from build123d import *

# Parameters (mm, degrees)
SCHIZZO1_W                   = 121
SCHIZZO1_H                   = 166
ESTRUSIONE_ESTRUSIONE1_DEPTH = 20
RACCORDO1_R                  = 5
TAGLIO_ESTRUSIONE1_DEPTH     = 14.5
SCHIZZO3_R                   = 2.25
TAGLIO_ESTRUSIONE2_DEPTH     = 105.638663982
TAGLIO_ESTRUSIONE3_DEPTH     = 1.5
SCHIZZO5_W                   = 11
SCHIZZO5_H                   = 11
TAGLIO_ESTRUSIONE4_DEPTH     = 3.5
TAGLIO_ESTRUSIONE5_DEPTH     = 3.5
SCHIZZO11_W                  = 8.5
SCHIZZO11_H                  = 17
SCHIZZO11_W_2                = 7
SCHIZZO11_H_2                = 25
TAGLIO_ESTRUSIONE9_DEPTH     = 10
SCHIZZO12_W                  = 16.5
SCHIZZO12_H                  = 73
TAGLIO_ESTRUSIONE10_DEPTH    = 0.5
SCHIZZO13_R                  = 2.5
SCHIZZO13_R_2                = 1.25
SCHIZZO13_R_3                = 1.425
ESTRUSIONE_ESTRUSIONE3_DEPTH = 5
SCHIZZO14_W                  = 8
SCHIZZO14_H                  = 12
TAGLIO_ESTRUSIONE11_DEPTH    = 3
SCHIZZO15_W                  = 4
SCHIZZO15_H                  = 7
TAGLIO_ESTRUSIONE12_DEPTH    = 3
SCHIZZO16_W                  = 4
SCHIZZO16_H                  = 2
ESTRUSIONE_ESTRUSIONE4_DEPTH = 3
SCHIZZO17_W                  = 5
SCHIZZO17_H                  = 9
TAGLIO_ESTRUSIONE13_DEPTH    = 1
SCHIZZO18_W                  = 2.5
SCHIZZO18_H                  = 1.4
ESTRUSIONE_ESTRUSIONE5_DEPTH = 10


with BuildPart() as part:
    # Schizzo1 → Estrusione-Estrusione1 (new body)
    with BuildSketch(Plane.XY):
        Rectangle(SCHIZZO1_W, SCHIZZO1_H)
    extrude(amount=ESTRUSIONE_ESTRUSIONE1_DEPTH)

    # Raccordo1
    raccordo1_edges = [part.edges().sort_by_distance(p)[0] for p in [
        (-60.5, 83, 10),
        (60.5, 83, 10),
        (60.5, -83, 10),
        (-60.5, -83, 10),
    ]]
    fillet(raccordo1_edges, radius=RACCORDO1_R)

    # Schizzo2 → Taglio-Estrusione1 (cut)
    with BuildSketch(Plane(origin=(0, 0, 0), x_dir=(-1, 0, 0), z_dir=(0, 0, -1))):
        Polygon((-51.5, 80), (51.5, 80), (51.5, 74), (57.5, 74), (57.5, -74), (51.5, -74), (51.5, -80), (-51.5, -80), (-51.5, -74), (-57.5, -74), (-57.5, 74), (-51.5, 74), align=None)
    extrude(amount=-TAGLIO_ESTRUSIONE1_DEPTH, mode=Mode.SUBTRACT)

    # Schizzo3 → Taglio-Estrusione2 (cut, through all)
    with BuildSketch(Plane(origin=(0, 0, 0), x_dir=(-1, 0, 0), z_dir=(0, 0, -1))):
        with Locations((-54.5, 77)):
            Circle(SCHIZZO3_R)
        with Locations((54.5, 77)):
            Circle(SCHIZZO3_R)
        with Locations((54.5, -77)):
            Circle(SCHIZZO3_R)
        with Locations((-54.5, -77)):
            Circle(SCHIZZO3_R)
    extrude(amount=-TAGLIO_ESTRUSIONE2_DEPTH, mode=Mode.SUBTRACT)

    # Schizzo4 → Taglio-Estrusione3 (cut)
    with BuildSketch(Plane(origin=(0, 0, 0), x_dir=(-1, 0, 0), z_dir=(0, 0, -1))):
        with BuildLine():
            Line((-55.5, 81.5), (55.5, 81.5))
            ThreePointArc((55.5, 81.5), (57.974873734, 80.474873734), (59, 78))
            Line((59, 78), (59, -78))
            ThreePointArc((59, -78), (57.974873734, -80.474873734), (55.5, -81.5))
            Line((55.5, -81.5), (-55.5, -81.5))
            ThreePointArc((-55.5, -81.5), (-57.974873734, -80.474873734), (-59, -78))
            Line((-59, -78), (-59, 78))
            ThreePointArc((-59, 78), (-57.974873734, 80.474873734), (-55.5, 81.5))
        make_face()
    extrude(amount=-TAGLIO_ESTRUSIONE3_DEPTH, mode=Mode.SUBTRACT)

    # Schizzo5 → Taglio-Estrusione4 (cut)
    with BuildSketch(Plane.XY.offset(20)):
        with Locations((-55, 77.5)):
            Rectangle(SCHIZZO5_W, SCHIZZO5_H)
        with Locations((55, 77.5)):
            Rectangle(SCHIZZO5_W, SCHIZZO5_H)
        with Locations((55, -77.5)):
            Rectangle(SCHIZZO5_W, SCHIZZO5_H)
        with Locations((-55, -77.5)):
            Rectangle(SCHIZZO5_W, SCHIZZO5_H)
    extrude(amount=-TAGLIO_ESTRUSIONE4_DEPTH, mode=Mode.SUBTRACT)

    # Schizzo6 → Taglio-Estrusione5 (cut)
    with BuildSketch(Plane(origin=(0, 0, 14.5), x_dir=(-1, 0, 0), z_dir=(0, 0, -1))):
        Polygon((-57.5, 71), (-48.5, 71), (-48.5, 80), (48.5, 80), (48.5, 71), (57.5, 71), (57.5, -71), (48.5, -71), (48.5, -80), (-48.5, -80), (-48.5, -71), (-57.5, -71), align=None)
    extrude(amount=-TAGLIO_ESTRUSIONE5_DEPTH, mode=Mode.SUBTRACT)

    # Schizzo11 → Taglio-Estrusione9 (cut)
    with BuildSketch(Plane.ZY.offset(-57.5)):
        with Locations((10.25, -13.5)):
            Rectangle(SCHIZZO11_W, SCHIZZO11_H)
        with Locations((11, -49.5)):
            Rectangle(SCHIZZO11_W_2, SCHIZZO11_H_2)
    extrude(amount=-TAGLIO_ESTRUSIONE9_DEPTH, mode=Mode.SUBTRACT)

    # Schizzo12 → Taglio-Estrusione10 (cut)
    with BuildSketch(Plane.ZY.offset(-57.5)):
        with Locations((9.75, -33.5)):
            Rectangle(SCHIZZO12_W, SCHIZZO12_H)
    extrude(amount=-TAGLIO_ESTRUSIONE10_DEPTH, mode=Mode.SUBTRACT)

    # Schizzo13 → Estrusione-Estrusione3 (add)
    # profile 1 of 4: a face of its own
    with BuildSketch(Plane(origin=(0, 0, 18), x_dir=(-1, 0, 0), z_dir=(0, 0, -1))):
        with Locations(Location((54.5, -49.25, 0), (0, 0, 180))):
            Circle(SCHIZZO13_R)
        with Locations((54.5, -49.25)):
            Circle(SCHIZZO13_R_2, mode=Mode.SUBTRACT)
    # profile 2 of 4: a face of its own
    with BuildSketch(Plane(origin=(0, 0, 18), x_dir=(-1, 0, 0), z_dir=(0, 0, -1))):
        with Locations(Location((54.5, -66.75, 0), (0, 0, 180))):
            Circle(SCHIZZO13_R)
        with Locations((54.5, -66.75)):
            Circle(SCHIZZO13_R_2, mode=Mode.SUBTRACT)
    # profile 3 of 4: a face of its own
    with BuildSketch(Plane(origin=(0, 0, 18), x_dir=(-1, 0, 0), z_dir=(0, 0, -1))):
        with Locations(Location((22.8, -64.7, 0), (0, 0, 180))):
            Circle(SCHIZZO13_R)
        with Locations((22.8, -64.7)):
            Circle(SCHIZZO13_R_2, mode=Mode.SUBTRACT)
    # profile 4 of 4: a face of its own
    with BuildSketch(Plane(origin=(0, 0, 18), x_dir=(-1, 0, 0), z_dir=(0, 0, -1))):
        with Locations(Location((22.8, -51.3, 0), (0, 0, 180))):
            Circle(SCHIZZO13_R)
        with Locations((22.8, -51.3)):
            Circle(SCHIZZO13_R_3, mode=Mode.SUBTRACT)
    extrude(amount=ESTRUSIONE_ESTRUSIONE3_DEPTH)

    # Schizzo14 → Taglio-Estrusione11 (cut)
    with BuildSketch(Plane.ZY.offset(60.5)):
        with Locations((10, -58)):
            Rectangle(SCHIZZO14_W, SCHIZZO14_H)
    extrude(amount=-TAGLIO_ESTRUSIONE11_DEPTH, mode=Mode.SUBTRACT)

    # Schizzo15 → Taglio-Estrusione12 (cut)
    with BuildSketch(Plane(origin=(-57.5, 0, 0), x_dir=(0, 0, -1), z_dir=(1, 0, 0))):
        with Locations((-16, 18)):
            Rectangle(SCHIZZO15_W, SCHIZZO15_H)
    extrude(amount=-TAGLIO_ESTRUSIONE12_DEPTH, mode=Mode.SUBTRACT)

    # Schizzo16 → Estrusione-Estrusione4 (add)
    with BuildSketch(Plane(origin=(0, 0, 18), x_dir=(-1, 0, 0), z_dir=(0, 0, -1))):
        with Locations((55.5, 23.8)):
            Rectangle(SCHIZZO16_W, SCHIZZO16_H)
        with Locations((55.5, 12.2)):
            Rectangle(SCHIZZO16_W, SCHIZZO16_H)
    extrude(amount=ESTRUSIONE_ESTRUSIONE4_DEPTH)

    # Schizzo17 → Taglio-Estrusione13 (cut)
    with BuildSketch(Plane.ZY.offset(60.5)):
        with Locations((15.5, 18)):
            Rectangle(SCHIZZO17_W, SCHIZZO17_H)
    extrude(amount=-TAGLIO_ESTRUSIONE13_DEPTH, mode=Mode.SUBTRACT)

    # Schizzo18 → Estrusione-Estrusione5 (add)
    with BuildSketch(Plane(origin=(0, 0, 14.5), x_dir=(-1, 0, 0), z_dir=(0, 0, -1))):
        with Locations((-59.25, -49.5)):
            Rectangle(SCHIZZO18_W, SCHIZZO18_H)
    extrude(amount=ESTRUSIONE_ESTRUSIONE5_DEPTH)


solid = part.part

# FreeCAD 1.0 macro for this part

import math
import FreeCAD as App
import Part
import Sketcher
from FreeCAD import Vector


def edges_at(feature, points):
    """Names of the edges that pass closest to the given points."""
    edges = feature.Shape.Edges
    near = lambda p: min(range(len(edges)), key=lambda i: edges[i].distToShape(Part.Vertex(*p))[0])
    return sorted({f"Edge{near(p) + 1}" for p in points})

doc = App.newDocument("Part")
params = doc.addObject("Spreadsheet::Sheet", "Params")
for row, (alias, value) in enumerate([
    ("sketch1_width", "121 mm"),
    ("sketch1_height", "166 mm"),
    ("pad1_length", "20 mm"),
    ("fillet_radius", "5 mm"),
    ("sketch2_width", "103 mm"),
    ("sketch2_width2", "6 mm"),
    ("sketch2_height", "148 mm"),
    ("pocket1_length", "14.5 mm"),
    ("sketch3_diameter", "4.5 mm"),
    ("sketch4_radius", "3.5 mm"),
    ("sketch4_width", "111 mm"),
    ("sketch4_height", "156 mm"),
    ("pocket3_length", "1.5 mm"),
    ("sketch5_width", "11 mm"),
    ("pocket4_length", "3.5 mm"),
    ("sketch6_width", "9 mm"),
    ("sketch6_width2", "97 mm"),
    ("sketch6_height", "142 mm"),
    ("pocket5_length", "3.5 mm"),
    ("sketch7_width", "17 mm"),
    ("sketch7_width2", "25 mm"),
    ("sketch7_height", "7 mm"),
    ("sketch7_height2", "8.5 mm"),
    ("pocket6_length", "10 mm"),
    ("sketch8_width", "73 mm"),
    ("sketch8_height", "16.5 mm"),
    ("pocket7_length", "0.5 mm"),
    ("sketch9_diameter", "5 mm"),
    ("sketch9_diameter2", "2.5 mm"),
    ("sketch9_diameter3", "2.85 mm"),
    ("pad2_length", "5 mm"),
    ("sketch10_width", "12 mm"),
    ("sketch10_height", "8 mm"),
    ("pocket8_length", "3 mm"),
    ("sketch11_width", "7 mm"),
    ("sketch11_height", "4 mm"),
    ("pocket9_length", "3 mm"),
    ("sketch12_width", "4 mm"),
    ("sketch12_height", "2 mm"),
    ("pad3_length", "3 mm"),
    ("sketch13_width", "9 mm"),
    ("sketch13_height", "5 mm"),
    ("pocket10_length", "1 mm"),
    ("sketch14_width", "2.5 mm"),
    ("sketch14_height", "1.4 mm"),
    ("pad4_length", "10 mm"),
], start=1):
    params.set(f"A{row}", alias)
    params.set(f"B{row}", "=" + value)
    params.setAlias(f"B{row}", alias)

body = doc.addObject("PartDesign::Body", "Body")

# Sketch on XY plane
sketch1 = doc.addObject("Sketcher::SketchObject", "Sketch")
body.addObject(sketch1)
sketch1.AttachmentSupport = (doc.XY_Plane, [""])
sketch1.MapMode = "FlatFace"
sketch1.addGeometry([
    Part.LineSegment(Vector(-60.5, 83, 0), Vector(-60.5, -83, 0)),
    Part.LineSegment(Vector(-60.5, -83, 0), Vector(60.5, -83, 0)),
    Part.LineSegment(Vector(60.5, -83, 0), Vector(60.5, 83, 0)),
    Part.LineSegment(Vector(60.5, 83, 0), Vector(-60.5, 83, 0)),
], False)
sketch1.addConstraint([
    Sketcher.Constraint("Coincident", 0, 2, 1, 1),
    Sketcher.Constraint("Coincident", 1, 2, 2, 1),
    Sketcher.Constraint("Coincident", 2, 2, 3, 1),
    Sketcher.Constraint("Coincident", 3, 2, 0, 1),
    Sketcher.Constraint("Vertical", 0),
    Sketcher.Constraint("Horizontal", 1),
    Sketcher.Constraint("Vertical", 2),
    Sketcher.Constraint("Horizontal", 3),
    Sketcher.Constraint("Symmetric", 0, 2, 2, 2, -1, 1),
    Sketcher.Constraint("DistanceX", 1, 1, 1, 2, 121.0),
    Sketcher.Constraint("DistanceY", 0, 2, 0, 1, 166.0),
])
sketch1.setExpression("Constraints[9]", "Params.sketch1_width")
sketch1.setExpression("Constraints[10]", "Params.sketch1_height")
pad1 = doc.addObject("PartDesign::Pad", "Pad")
body.addObject(pad1)
pad1.Profile = sketch1
pad1.setExpression("Length", "Params.pad1_length")
doc.recompute()

fillet = doc.addObject("PartDesign::Fillet", "Fillet")
body.addObject(fillet)
fillet.Base = (pad1, edges_at(pad1, [
    (-60.5, 83, 10),
    (60.5, 83, 10),
    (60.5, -83, 10),
    (-60.5, -83, 10),
]))
fillet.setExpression("Radius", "Params.fillet_radius")

# Sketch on XY plane
sketch2 = doc.addObject("Sketcher::SketchObject", "Sketch001")
body.addObject(sketch2)
sketch2.AttachmentSupport = (doc.XY_Plane, [""])
sketch2.MapMode = "FlatFace"
sketch2.addGeometry([
    Part.LineSegment(Vector(-51.5, 80, 0), Vector(51.5, 80, 0)),  # 0
    Part.LineSegment(Vector(51.5, 80, 0), Vector(51.5, 74, 0)),  # 1
    Part.LineSegment(Vector(51.5, 74, 0), Vector(57.5, 74, 0)),  # 2
    Part.LineSegment(Vector(57.5, 74, 0), Vector(57.5, -74, 0)),  # 3
    Part.LineSegment(Vector(57.5, -74, 0), Vector(51.5, -74, 0)),  # 4
    Part.LineSegment(Vector(51.5, -74, 0), Vector(51.5, -80, 0)),  # 5
    Part.LineSegment(Vector(51.5, -80, 0), Vector(-51.5, -80, 0)),  # 6
    Part.LineSegment(Vector(-51.5, -80, 0), Vector(-51.5, -74, 0)),  # 7
    Part.LineSegment(Vector(-51.5, -74, 0), Vector(-57.5, -74, 0)),  # 8
    Part.LineSegment(Vector(-57.5, -74, 0), Vector(-57.5, 74, 0)),  # 9
    Part.LineSegment(Vector(-57.5, 74, 0), Vector(-51.5, 74, 0)),  # 10
    Part.LineSegment(Vector(-51.5, 74, 0), Vector(-51.5, 80, 0)),  # 11
], False)
sketch2.addConstraint([
    Sketcher.Constraint("Coincident", 0, 2, 1, 1),
    Sketcher.Constraint("Coincident", 1, 2, 2, 1),
    Sketcher.Constraint("Coincident", 2, 2, 3, 1),
    Sketcher.Constraint("Coincident", 3, 2, 4, 1),
    Sketcher.Constraint("Coincident", 4, 2, 5, 1),
    Sketcher.Constraint("Coincident", 5, 2, 6, 1),
    Sketcher.Constraint("Coincident", 6, 2, 7, 1),
    Sketcher.Constraint("Coincident", 7, 2, 8, 1),
    Sketcher.Constraint("Coincident", 8, 2, 9, 1),
    Sketcher.Constraint("Coincident", 9, 2, 10, 1),
    Sketcher.Constraint("Coincident", 10, 2, 11, 1),
    Sketcher.Constraint("Coincident", 11, 2, 0, 1),
    Sketcher.Constraint("Horizontal", 0),
    Sketcher.Constraint("Vertical", 1),
    Sketcher.Constraint("Horizontal", 2),
    Sketcher.Constraint("Vertical", 3),
    Sketcher.Constraint("Horizontal", 4),
    Sketcher.Constraint("Vertical", 5),
    Sketcher.Constraint("Horizontal", 6),
    Sketcher.Constraint("Vertical", 7),
    Sketcher.Constraint("Horizontal", 8),
    Sketcher.Constraint("Vertical", 9),
    Sketcher.Constraint("Horizontal", 10),
    Sketcher.Constraint("Vertical", 11),
    Sketcher.Constraint("Symmetric", 0, 2, 6, 2, -1, 1),
    Sketcher.Constraint("Symmetric", 2, 2, 8, 2, -1, 1),
    Sketcher.Constraint("Symmetric", 4, 2, 10, 2, -1, 1),
    Sketcher.Constraint("Symmetric", 4, 2, 7, 2, -2),
    Sketcher.Constraint("Equal", 10, 1),
    Sketcher.Constraint("DistanceX", 0, 1, 0, 2, 103.0),
    Sketcher.Constraint("DistanceX", 2, 1, 2, 2, 6.0),
    Sketcher.Constraint("DistanceY", 3, 2, 3, 1, 148.0),
])
sketch2.setExpression("Constraints[29]", "Params.sketch2_width")
sketch2.setExpression("Constraints[30]", "Params.sketch2_width2")
sketch2.setExpression("Constraints[31]", "Params.sketch2_height")
pocket1 = doc.addObject("PartDesign::Pocket", "Pocket")
body.addObject(pocket1)
pocket1.Profile = sketch2
pocket1.setExpression("Length", "Params.pocket1_length")
pocket1.Reversed = True

# Sketch on XY plane
sketch3 = doc.addObject("Sketcher::SketchObject", "Sketch002")
body.addObject(sketch3)
sketch3.AttachmentSupport = (doc.XY_Plane, [""])
sketch3.MapMode = "FlatFace"
sketch3.addGeometry([
    Part.Circle(Vector(54.5, 77, 0), Vector(0, 0, 1), 2.25),
    Part.Circle(Vector(-54.5, 77, 0), Vector(0, 0, 1), 2.25),
    Part.Circle(Vector(-54.5, -77, 0), Vector(0, 0, 1), 2.25),
    Part.Circle(Vector(54.5, -77, 0), Vector(0, 0, 1), 2.25),
], False)
sketch3.addConstraint([
    Sketcher.Constraint("Equal", 0, 1),
    Sketcher.Constraint("Equal", 1, 2),
    Sketcher.Constraint("Equal", 2, 3),
    Sketcher.Constraint("Symmetric", 0, 3, 2, 3, -1, 1),
    Sketcher.Constraint("Symmetric", 1, 3, 3, 3, -1, 1),
    Sketcher.Constraint("Symmetric", 0, 3, 1, 3, -2),
    Sketcher.Constraint("Diameter", 0, 4.5),
    Sketcher.Constraint("DistanceY", -1, 1, 0, 3, 77.0),
    Sketcher.Constraint("DistanceX", 1, 3, 0, 3, 109.0),
])
sketch3.setExpression("Constraints[6]", "Params.sketch3_diameter")
pocket2 = doc.addObject("PartDesign::Pocket", "Pocket001")
body.addObject(pocket2)
pocket2.Profile = sketch3
pocket2.Type = "ThroughAll"
pocket2.Reversed = True

# Sketch on XY plane
sketch4 = doc.addObject("Sketcher::SketchObject", "Sketch003")
body.addObject(sketch4)
sketch4.AttachmentSupport = (doc.XY_Plane, [""])
sketch4.MapMode = "FlatFace"
sketch4.addGeometry([
    Part.LineSegment(Vector(-55.5, 81.5, 0), Vector(55.5, 81.5, 0)),  # 0
    Part.ArcOfCircle(Part.Circle(Vector(55.5, 78, 0), Vector(0, 0, 1), 3.5), math.radians(0), math.radians(90)),  # 1
    Part.LineSegment(Vector(59, 78, 0), Vector(59, -78, 0)),  # 2
    Part.ArcOfCircle(Part.Circle(Vector(55.5, -78, 0), Vector(0, 0, 1), 3.5), math.radians(-90), math.radians(0)),  # 3
    Part.LineSegment(Vector(55.5, -81.5, 0), Vector(-55.5, -81.5, 0)),  # 4
    Part.ArcOfCircle(Part.Circle(Vector(-55.5, -78, 0), Vector(0, 0, 1), 3.5), math.radians(-180), math.radians(-90)),  # 5
    Part.LineSegment(Vector(-59, -78, 0), Vector(-59, 78, 0)),  # 6
    Part.ArcOfCircle(Part.Circle(Vector(-55.5, 78, 0), Vector(0, 0, 1), 3.5), math.radians(90), math.radians(180)),  # 7
], False)
sketch4.addConstraint([
    Sketcher.Constraint("Tangent", 0, 2, 1, 2),
    Sketcher.Constraint("Tangent", 1, 1, 2, 1),
    Sketcher.Constraint("Tangent", 2, 2, 3, 2),
    Sketcher.Constraint("Tangent", 3, 1, 4, 1),
    Sketcher.Constraint("Tangent", 4, 2, 5, 2),
    Sketcher.Constraint("Tangent", 5, 1, 6, 1),
    Sketcher.Constraint("Tangent", 6, 2, 7, 2),
    Sketcher.Constraint("Tangent", 7, 1, 0, 1),
    Sketcher.Constraint("Horizontal", 0),
    Sketcher.Constraint("Vertical", 2),
    Sketcher.Constraint("Horizontal", 4),
    Sketcher.Constraint("Vertical", 6),
    Sketcher.Constraint("Equal", 1, 3),
    Sketcher.Constraint("Equal", 3, 5),
    Sketcher.Constraint("Equal", 5, 7),
    Sketcher.Constraint("Symmetric", 1, 3, 5, 3, -1, 1),
    Sketcher.Constraint("Radius", 1, 3.5),
    Sketcher.Constraint("DistanceX", 0, 1, 0, 2, 111.0),
    Sketcher.Constraint("DistanceY", 2, 2, 2, 1, 156.0),
])
sketch4.setExpression("Constraints[16]", "Params.sketch4_radius")
sketch4.setExpression("Constraints[17]", "Params.sketch4_width")
sketch4.setExpression("Constraints[18]", "Params.sketch4_height")
pocket3 = doc.addObject("PartDesign::Pocket", "Pocket002")
body.addObject(pocket3)
pocket3.Profile = sketch4
pocket3.setExpression("Length", "Params.pocket3_length")
pocket3.Reversed = True

# Sketch on XY plane
sketch5 = doc.addObject("Sketcher::SketchObject", "Sketch004")
body.addObject(sketch5)
sketch5.AttachmentSupport = (doc.XY_Plane, [""])
sketch5.MapMode = "FlatFace"
sketch5.AttachmentOffset = App.Placement(Vector(0, 0, 20), App.Rotation())
sketch5.addGeometry([
    Part.LineSegment(Vector(-60.5, 83, 0), Vector(-60.5, 72, 0)),  # 0
    Part.LineSegment(Vector(-60.5, 72, 0), Vector(-49.5, 72, 0)),  # 1
    Part.LineSegment(Vector(-49.5, 72, 0), Vector(-49.5, 83, 0)),  # 2
    Part.LineSegment(Vector(-49.5, 83, 0), Vector(-60.5, 83, 0)),  # 3
    Part.LineSegment(Vector(49.5, 83, 0), Vector(49.5, 72, 0)),  # 4
    Part.LineSegment(Vector(49.5, 72, 0), Vector(60.5, 72, 0)),  # 5
    Part.LineSegment(Vector(60.5, 72, 0), Vector(60.5, 83, 0)),  # 6
    Part.LineSegment(Vector(60.5, 83, 0), Vector(49.5, 83, 0)),  # 7
    Part.LineSegment(Vector(49.5, -72, 0), Vector(49.5, -83, 0)),  # 8
    Part.LineSegment(Vector(49.5, -83, 0), Vector(60.5, -83, 0)),  # 9
    Part.LineSegment(Vector(60.5, -83, 0), Vector(60.5, -72, 0)),  # 10
    Part.LineSegment(Vector(60.5, -72, 0), Vector(49.5, -72, 0)),  # 11
    Part.LineSegment(Vector(-60.5, -72, 0), Vector(-60.5, -83, 0)),  # 12
    Part.LineSegment(Vector(-60.5, -83, 0), Vector(-49.5, -83, 0)),  # 13
    Part.LineSegment(Vector(-49.5, -83, 0), Vector(-49.5, -72, 0)),  # 14
    Part.LineSegment(Vector(-49.5, -72, 0), Vector(-60.5, -72, 0)),  # 15
], False)
sketch5.addConstraint([
    Sketcher.Constraint("Coincident", 0, 2, 1, 1),
    Sketcher.Constraint("Coincident", 1, 2, 2, 1),
    Sketcher.Constraint("Coincident", 2, 2, 3, 1),
    Sketcher.Constraint("Coincident", 3, 2, 0, 1),
    Sketcher.Constraint("Coincident", 4, 2, 5, 1),
    Sketcher.Constraint("Coincident", 5, 2, 6, 1),
    Sketcher.Constraint("Coincident", 6, 2, 7, 1),
    Sketcher.Constraint("Coincident", 7, 2, 4, 1),
    Sketcher.Constraint("Coincident", 8, 2, 9, 1),
    Sketcher.Constraint("Coincident", 9, 2, 10, 1),
    Sketcher.Constraint("Coincident", 10, 2, 11, 1),
    Sketcher.Constraint("Coincident", 11, 2, 8, 1),
    Sketcher.Constraint("Coincident", 12, 2, 13, 1),
    Sketcher.Constraint("Coincident", 13, 2, 14, 1),
    Sketcher.Constraint("Coincident", 14, 2, 15, 1),
    Sketcher.Constraint("Coincident", 15, 2, 12, 1),
    Sketcher.Constraint("Vertical", 0),
    Sketcher.Constraint("Horizontal", 1),
    Sketcher.Constraint("Vertical", 2),
    Sketcher.Constraint("Horizontal", 3),
    Sketcher.Constraint("Vertical", 4),
    Sketcher.Constraint("Horizontal", 5),
    Sketcher.Constraint("Vertical", 6),
    Sketcher.Constraint("Horizontal", 7),
    Sketcher.Constraint("Vertical", 8),
    Sketcher.Constraint("Horizontal", 9),
    Sketcher.Constraint("Vertical", 10),
    Sketcher.Constraint("Horizontal", 11),
    Sketcher.Constraint("Vertical", 12),
    Sketcher.Constraint("Horizontal", 13),
    Sketcher.Constraint("Vertical", 14),
    Sketcher.Constraint("Horizontal", 15),
    Sketcher.Constraint("Symmetric", 2, 2, 8, 2, -1, 1),
    Sketcher.Constraint("Symmetric", 0, 2, 10, 2, -1, 1),
    Sketcher.Constraint("Symmetric", 6, 2, 12, 2, -1, 1),
    Sketcher.Constraint("Symmetric", 4, 2, 14, 2, -1, 1),
    Sketcher.Constraint("Symmetric", 1, 2, 4, 2, -2),
    Sketcher.Constraint("Symmetric", 3, 2, 6, 2, -2),
    Sketcher.Constraint("Equal", 15, 0),
    Sketcher.Constraint("DistanceX", 1, 1, 1, 2, 11.0),
    Sketcher.Constraint("DistanceY", -1, 1, 0, 2, 72.0),
    Sketcher.Constraint("DistanceX", 1, 2, 4, 2, 99.0),
])
sketch5.setExpression("Constraints[39]", "Params.sketch5_width")
pocket4 = doc.addObject("PartDesign::Pocket", "Pocket003")
body.addObject(pocket4)
pocket4.Profile = sketch5
pocket4.setExpression("Length", "Params.pocket4_length")

# Sketch on XY plane
sketch6 = doc.addObject("Sketcher::SketchObject", "Sketch005")
body.addObject(sketch6)
sketch6.AttachmentSupport = (doc.XY_Plane, [""])
sketch6.MapMode = "FlatFace"
sketch6.AttachmentOffset = App.Placement(Vector(0, 0, 14.5), App.Rotation())
sketch6.addGeometry([
    Part.LineSegment(Vector(48.5, 71, 0), Vector(57.5, 71, 0)),  # 0
    Part.LineSegment(Vector(57.5, 71, 0), Vector(57.5, -71, 0)),  # 1
    Part.LineSegment(Vector(57.5, -71, 0), Vector(48.5, -71, 0)),  # 2
    Part.LineSegment(Vector(48.5, -71, 0), Vector(48.5, -80, 0)),  # 3
    Part.LineSegment(Vector(48.5, -80, 0), Vector(-48.5, -80, 0)),  # 4
    Part.LineSegment(Vector(-48.5, -80, 0), Vector(-48.5, -71, 0)),  # 5
    Part.LineSegment(Vector(-48.5, -71, 0), Vector(-57.5, -71, 0)),  # 6
    Part.LineSegment(Vector(-57.5, -71, 0), Vector(-57.5, 71, 0)),  # 7
    Part.LineSegment(Vector(-57.5, 71, 0), Vector(-48.5, 71, 0)),  # 8
    Part.LineSegment(Vector(-48.5, 71, 0), Vector(-48.5, 80, 0)),  # 9
    Part.LineSegment(Vector(-48.5, 80, 0), Vector(48.5, 80, 0)),  # 10
    Part.LineSegment(Vector(48.5, 80, 0), Vector(48.5, 71, 0)),  # 11
], False)
sketch6.addConstraint([
    Sketcher.Constraint("Coincident", 0, 2, 1, 1),
    Sketcher.Constraint("Coincident", 1, 2, 2, 1),
    Sketcher.Constraint("Coincident", 2, 2, 3, 1),
    Sketcher.Constraint("Coincident", 3, 2, 4, 1),
    Sketcher.Constraint("Coincident", 4, 2, 5, 1),
    Sketcher.Constraint("Coincident", 5, 2, 6, 1),
    Sketcher.Constraint("Coincident", 6, 2, 7, 1),
    Sketcher.Constraint("Coincident", 7, 2, 8, 1),
    Sketcher.Constraint("Coincident", 8, 2, 9, 1),
    Sketcher.Constraint("Coincident", 9, 2, 10, 1),
    Sketcher.Constraint("Coincident", 10, 2, 11, 1),
    Sketcher.Constraint("Coincident", 11, 2, 0, 1),
    Sketcher.Constraint("Horizontal", 0),
    Sketcher.Constraint("Vertical", 1),
    Sketcher.Constraint("Horizontal", 2),
    Sketcher.Constraint("Vertical", 3),
    Sketcher.Constraint("Horizontal", 4),
    Sketcher.Constraint("Vertical", 5),
    Sketcher.Constraint("Horizontal", 6),
    Sketcher.Constraint("Vertical", 7),
    Sketcher.Constraint("Horizontal", 8),
    Sketcher.Constraint("Vertical", 9),
    Sketcher.Constraint("Horizontal", 10),
    Sketcher.Constraint("Vertical", 11),
    Sketcher.Constraint("Symmetric", 0, 2, 6, 2, -1, 1),
    Sketcher.Constraint("Symmetric", 2, 2, 8, 2, -1, 1),
    Sketcher.Constraint("Symmetric", 4, 2, 10, 2, -1, 1),
    Sketcher.Constraint("Symmetric", 2, 2, 5, 2, -2),
    Sketcher.Constraint("Equal", 8, 3),
    Sketcher.Constraint("DistanceX", 0, 1, 0, 2, 9.0),
    Sketcher.Constraint("DistanceX", 4, 2, 4, 1, 97.0),
    Sketcher.Constraint("DistanceY", 1, 2, 1, 1, 142.0),
])
sketch6.setExpression("Constraints[29]", "Params.sketch6_width")
sketch6.setExpression("Constraints[30]", "Params.sketch6_width2")
sketch6.setExpression("Constraints[31]", "Params.sketch6_height")
pocket5 = doc.addObject("PartDesign::Pocket", "Pocket004")
body.addObject(pocket5)
pocket5.Profile = sketch6
pocket5.setExpression("Length", "Params.pocket5_length")
pocket5.Reversed = True

# Sketch on YZ plane
sketch7 = doc.addObject("Sketcher::SketchObject", "Sketch006")
body.addObject(sketch7)
sketch7.AttachmentSupport = (doc.YZ_Plane, [""])
sketch7.MapMode = "FlatFace"
sketch7.AttachmentOffset = App.Placement(Vector(0, 0, 57.5), App.Rotation())
sketch7.addGeometry([
    Part.LineSegment(Vector(-5, 6, 0), Vector(-22, 6, 0)),  # 0
    Part.LineSegment(Vector(-22, 6, 0), Vector(-22, 14.5, 0)),  # 1
    Part.LineSegment(Vector(-22, 14.5, 0), Vector(-5, 14.5, 0)),  # 2
    Part.LineSegment(Vector(-5, 14.5, 0), Vector(-5, 6, 0)),  # 3
    Part.LineSegment(Vector(-37, 7.5, 0), Vector(-62, 7.5, 0)),  # 4
    Part.LineSegment(Vector(-62, 7.5, 0), Vector(-62, 14.5, 0)),  # 5
    Part.LineSegment(Vector(-62, 14.5, 0), Vector(-37, 14.5, 0)),  # 6
    Part.LineSegment(Vector(-37, 14.5, 0), Vector(-37, 7.5, 0)),  # 7
], False)
sketch7.addConstraint([
    Sketcher.Constraint("Coincident", 0, 2, 1, 1),
    Sketcher.Constraint("Coincident", 1, 2, 2, 1),
    Sketcher.Constraint("Coincident", 2, 2, 3, 1),
    Sketcher.Constraint("Coincident", 3, 2, 0, 1),
    Sketcher.Constraint("Coincident", 4, 2, 5, 1),
    Sketcher.Constraint("Coincident", 5, 2, 6, 1),
    Sketcher.Constraint("Coincident", 6, 2, 7, 1),
    Sketcher.Constraint("Coincident", 7, 2, 4, 1),
    Sketcher.Constraint("Horizontal", 0),
    Sketcher.Constraint("Vertical", 1),
    Sketcher.Constraint("Horizontal", 2),
    Sketcher.Constraint("Vertical", 3),
    Sketcher.Constraint("Horizontal", 4),
    Sketcher.Constraint("Vertical", 5),
    Sketcher.Constraint("Horizontal", 6),
    Sketcher.Constraint("Vertical", 7),
    Sketcher.Constraint("Horizontal", 2, 2, 5, 2),
    Sketcher.Constraint("DistanceX", 0, 2, 0, 1, 17.0),
    Sketcher.Constraint("DistanceX", 4, 2, 4, 1, 25.0),
    Sketcher.Constraint("DistanceY", 5, 1, 5, 2, 7.0),
    Sketcher.Constraint("DistanceY", 1, 1, 1, 2, 8.5),
    Sketcher.Constraint("DistanceX", 0, 2, -1, 1, 22.0),
    Sketcher.Constraint("DistanceY", -1, 1, 0, 2, 6.0),
    Sketcher.Constraint("DistanceX", 4, 2, -1, 1, 62.0),
])
sketch7.setExpression("Constraints[17]", "Params.sketch7_width")
sketch7.setExpression("Constraints[18]", "Params.sketch7_width2")
sketch7.setExpression("Constraints[19]", "Params.sketch7_height")
sketch7.setExpression("Constraints[20]", "Params.sketch7_height2")
pocket6 = doc.addObject("PartDesign::Pocket", "Pocket005")
body.addObject(pocket6)
pocket6.Profile = sketch7
pocket6.setExpression("Length", "Params.pocket6_length")
pocket6.Reversed = True

# Sketch on YZ plane
sketch8 = doc.addObject("Sketcher::SketchObject", "Sketch007")
body.addObject(sketch8)
sketch8.AttachmentSupport = (doc.YZ_Plane, [""])
sketch8.MapMode = "FlatFace"
sketch8.AttachmentOffset = App.Placement(Vector(0, 0, 57.5), App.Rotation())
sketch8.addGeometry([
    Part.LineSegment(Vector(3, 1.5, 0), Vector(-70, 1.5, 0)),
    Part.LineSegment(Vector(-70, 1.5, 0), Vector(-70, 18, 0)),
    Part.LineSegment(Vector(-70, 18, 0), Vector(3, 18, 0)),
    Part.LineSegment(Vector(3, 18, 0), Vector(3, 1.5, 0)),
], False)
sketch8.addConstraint([
    Sketcher.Constraint("Coincident", 0, 2, 1, 1),
    Sketcher.Constraint("Coincident", 1, 2, 2, 1),
    Sketcher.Constraint("Coincident", 2, 2, 3, 1),
    Sketcher.Constraint("Coincident", 3, 2, 0, 1),
    Sketcher.Constraint("Horizontal", 0),
    Sketcher.Constraint("Vertical", 1),
    Sketcher.Constraint("Horizontal", 2),
    Sketcher.Constraint("Vertical", 3),
    Sketcher.Constraint("DistanceX", 0, 2, 0, 1, 73.0),
    Sketcher.Constraint("DistanceY", 1, 1, 1, 2, 16.5),
    Sketcher.Constraint("DistanceX", 0, 2, -1, 1, 70.0),
    Sketcher.Constraint("DistanceY", -1, 1, 1, 2, 18.0),
])
sketch8.setExpression("Constraints[8]", "Params.sketch8_width")
sketch8.setExpression("Constraints[9]", "Params.sketch8_height")
pocket7 = doc.addObject("PartDesign::Pocket", "Pocket006")
body.addObject(pocket7)
pocket7.Profile = sketch8
pocket7.setExpression("Length", "Params.pocket7_length")
pocket7.Reversed = True

# Sketch on XY plane
sketch9 = doc.addObject("Sketcher::SketchObject", "Sketch008")
body.addObject(sketch9)
sketch9.AttachmentSupport = (doc.XY_Plane, [""])
sketch9.MapMode = "FlatFace"
sketch9.AttachmentOffset = App.Placement(Vector(0, 0, 18), App.Rotation())
sketch9.addGeometry([
    Part.Circle(Vector(-54.5, -49.25, 0), Vector(0, 0, 1), 2.5),  # 0
    Part.Circle(Vector(-54.5, -49.25, 0), Vector(0, 0, 1), 1.25),  # 1
    Part.Circle(Vector(-54.5, -66.75, 0), Vector(0, 0, 1), 2.5),  # 2
    Part.Circle(Vector(-54.5, -66.75, 0), Vector(0, 0, 1), 1.25),  # 3
    Part.Circle(Vector(-22.8, -64.7, 0), Vector(0, 0, 1), 2.5),  # 4
    Part.Circle(Vector(-22.8, -64.7, 0), Vector(0, 0, 1), 1.25),  # 5
    Part.Circle(Vector(-22.8, -51.3, 0), Vector(0, 0, 1), 2.5),  # 6
    Part.Circle(Vector(-22.8, -51.3, 0), Vector(0, 0, 1), 1.425),  # 7
], False)
sketch9.addConstraint([
    Sketcher.Constraint("Coincident", 1, 3, 0, 3),
    Sketcher.Constraint("Coincident", 3, 3, 2, 3),
    Sketcher.Constraint("Coincident", 5, 3, 4, 3),
    Sketcher.Constraint("Coincident", 7, 3, 6, 3),
    Sketcher.Constraint("Equal", 0, 2),
    Sketcher.Constraint("Equal", 1, 3),
    Sketcher.Constraint("Equal", 2, 4),
    Sketcher.Constraint("Equal", 3, 5),
    Sketcher.Constraint("Equal", 4, 6),
    Sketcher.Constraint("Vertical", 1, 3, 2, 3),
    Sketcher.Constraint("Vertical", 5, 3, 6, 3),
    Sketcher.Constraint("Diameter", 0, 5.0),
    Sketcher.Constraint("Diameter", 1, 2.5),
    Sketcher.Constraint("Diameter", 7, 2.85),
    Sketcher.Constraint("DistanceX", 0, 3, -1, 1, 54.5),
    Sketcher.Constraint("DistanceX", 4, 3, -1, 1, 22.8),
    Sketcher.Constraint("DistanceY", 4, 3, -1, 1, 64.7),
    Sketcher.Constraint("DistanceY", 6, 3, -1, 1, 51.3),
    Sketcher.Constraint("DistanceY", 2, 3, 0, 3, 17.5),
    Sketcher.Constraint("DistanceY", 0, 3, -1, 1, 49.25),
])
sketch9.setExpression("Constraints[11]", "Params.sketch9_diameter")
sketch9.setExpression("Constraints[12]", "Params.sketch9_diameter2")
sketch9.setExpression("Constraints[13]", "Params.sketch9_diameter3")
pad2 = doc.addObject("PartDesign::Pad", "Pad001")
body.addObject(pad2)
pad2.Profile = sketch9
pad2.setExpression("Length", "Params.pad2_length")
pad2.Reversed = True

# Sketch on YZ plane
sketch10 = doc.addObject("Sketcher::SketchObject", "Sketch009")
body.addObject(sketch10)
sketch10.AttachmentSupport = (doc.YZ_Plane, [""])
sketch10.MapMode = "FlatFace"
sketch10.AttachmentOffset = App.Placement(Vector(0, 0, -60.5), App.Rotation())
sketch10.addGeometry([
    Part.LineSegment(Vector(-52, 6, 0), Vector(-64, 6, 0)),
    Part.LineSegment(Vector(-64, 6, 0), Vector(-64, 14, 0)),
    Part.LineSegment(Vector(-64, 14, 0), Vector(-52, 14, 0)),
    Part.LineSegment(Vector(-52, 14, 0), Vector(-52, 6, 0)),
], False)
sketch10.addConstraint([
    Sketcher.Constraint("Coincident", 0, 2, 1, 1),
    Sketcher.Constraint("Coincident", 1, 2, 2, 1),
    Sketcher.Constraint("Coincident", 2, 2, 3, 1),
    Sketcher.Constraint("Coincident", 3, 2, 0, 1),
    Sketcher.Constraint("Horizontal", 0),
    Sketcher.Constraint("Vertical", 1),
    Sketcher.Constraint("Horizontal", 2),
    Sketcher.Constraint("Vertical", 3),
    Sketcher.Constraint("DistanceX", 0, 2, 0, 1, 12.0),
    Sketcher.Constraint("DistanceY", 1, 1, 1, 2, 8.0),
    Sketcher.Constraint("DistanceX", 0, 2, -1, 1, 64.0),
    Sketcher.Constraint("DistanceY", -1, 1, 0, 2, 6.0),
])
sketch10.setExpression("Constraints[8]", "Params.sketch10_width")
sketch10.setExpression("Constraints[9]", "Params.sketch10_height")
pocket8 = doc.addObject("PartDesign::Pocket", "Pocket007")
body.addObject(pocket8)
pocket8.Profile = sketch10
pocket8.setExpression("Length", "Params.pocket8_length")
pocket8.Reversed = True

# Sketch on YZ plane
sketch11 = doc.addObject("Sketcher::SketchObject", "Sketch010")
body.addObject(sketch11)
sketch11.AttachmentSupport = (doc.YZ_Plane, [""])
sketch11.MapMode = "FlatFace"
sketch11.AttachmentOffset = App.Placement(Vector(0, 0, -57.5), App.Rotation())
sketch11.addGeometry([
    Part.LineSegment(Vector(21.5, 18, 0), Vector(14.5, 18, 0)),
    Part.LineSegment(Vector(14.5, 18, 0), Vector(14.5, 14, 0)),
    Part.LineSegment(Vector(14.5, 14, 0), Vector(21.5, 14, 0)),
    Part.LineSegment(Vector(21.5, 14, 0), Vector(21.5, 18, 0)),
], False)
sketch11.addConstraint([
    Sketcher.Constraint("Coincident", 0, 2, 1, 1),
    Sketcher.Constraint("Coincident", 1, 2, 2, 1),
    Sketcher.Constraint("Coincident", 2, 2, 3, 1),
    Sketcher.Constraint("Coincident", 3, 2, 0, 1),
    Sketcher.Constraint("Horizontal", 0),
    Sketcher.Constraint("Vertical", 1),
    Sketcher.Constraint("Horizontal", 2),
    Sketcher.Constraint("Vertical", 3),
    Sketcher.Constraint("DistanceX", 0, 2, 0, 1, 7.0),
    Sketcher.Constraint("DistanceY", 1, 2, 1, 1, 4.0),
    Sketcher.Constraint("DistanceY", -1, 1, 0, 2, 18.0),
    Sketcher.Constraint("DistanceX", -1, 1, 0, 2, 14.5),
])
sketch11.setExpression("Constraints[8]", "Params.sketch11_width")
sketch11.setExpression("Constraints[9]", "Params.sketch11_height")
pocket9 = doc.addObject("PartDesign::Pocket", "Pocket008")
body.addObject(pocket9)
pocket9.Profile = sketch11
pocket9.setExpression("Length", "Params.pocket9_length")

# Sketch on XY plane
sketch12 = doc.addObject("Sketcher::SketchObject", "Sketch011")
body.addObject(sketch12)
sketch12.AttachmentSupport = (doc.XY_Plane, [""])
sketch12.MapMode = "FlatFace"
sketch12.AttachmentOffset = App.Placement(Vector(0, 0, 18), App.Rotation())
sketch12.addGeometry([
    Part.LineSegment(Vector(-53.5, 24.8, 0), Vector(-53.5, 22.8, 0)),  # 0
    Part.LineSegment(Vector(-53.5, 22.8, 0), Vector(-57.5, 22.8, 0)),  # 1
    Part.LineSegment(Vector(-57.5, 22.8, 0), Vector(-57.5, 24.8, 0)),  # 2
    Part.LineSegment(Vector(-57.5, 24.8, 0), Vector(-53.5, 24.8, 0)),  # 3
    Part.LineSegment(Vector(-53.5, 13.2, 0), Vector(-53.5, 11.2, 0)),  # 4
    Part.LineSegment(Vector(-53.5, 11.2, 0), Vector(-57.5, 11.2, 0)),  # 5
    Part.LineSegment(Vector(-57.5, 11.2, 0), Vector(-57.5, 13.2, 0)),  # 6
    Part.LineSegment(Vector(-57.5, 13.2, 0), Vector(-53.5, 13.2, 0)),  # 7
], False)
sketch12.addConstraint([
    Sketcher.Constraint("Coincident", 0, 2, 1, 1),
    Sketcher.Constraint("Coincident", 1, 2, 2, 1),
    Sketcher.Constraint("Coincident", 2, 2, 3, 1),
    Sketcher.Constraint("Coincident", 3, 2, 0, 1),
    Sketcher.Constraint("Coincident", 4, 2, 5, 1),
    Sketcher.Constraint("Coincident", 5, 2, 6, 1),
    Sketcher.Constraint("Coincident", 6, 2, 7, 1),
    Sketcher.Constraint("Coincident", 7, 2, 4, 1),
    Sketcher.Constraint("Vertical", 0),
    Sketcher.Constraint("Horizontal", 1),
    Sketcher.Constraint("Vertical", 2),
    Sketcher.Constraint("Horizontal", 3),
    Sketcher.Constraint("Vertical", 4),
    Sketcher.Constraint("Horizontal", 5),
    Sketcher.Constraint("Vertical", 6),
    Sketcher.Constraint("Horizontal", 7),
    Sketcher.Constraint("Vertical", 3, 2, 4, 2),
    Sketcher.Constraint("Vertical", 2, 2, 5, 2),
    Sketcher.Constraint("Equal", 2, 4),
    Sketcher.Constraint("DistanceX", 1, 2, 1, 1, 4.0),
    Sketcher.Constraint("DistanceY", 0, 2, 0, 1, 2.0),
    Sketcher.Constraint("DistanceX", 0, 2, -1, 1, 53.5),
    Sketcher.Constraint("DistanceY", -1, 1, 0, 2, 22.8),
    Sketcher.Constraint("DistanceY", -1, 1, 4, 2, 11.2),
])
sketch12.setExpression("Constraints[19]", "Params.sketch12_width")
sketch12.setExpression("Constraints[20]", "Params.sketch12_height")
pad3 = doc.addObject("PartDesign::Pad", "Pad002")
body.addObject(pad3)
pad3.Profile = sketch12
pad3.setExpression("Length", "Params.pad3_length")
pad3.Reversed = True

# Sketch on YZ plane
sketch13 = doc.addObject("Sketcher::SketchObject", "Sketch012")
body.addObject(sketch13)
sketch13.AttachmentSupport = (doc.YZ_Plane, [""])
sketch13.MapMode = "FlatFace"
sketch13.AttachmentOffset = App.Placement(Vector(0, 0, -60.5), App.Rotation())
sketch13.addGeometry([
    Part.LineSegment(Vector(22.5, 13, 0), Vector(13.5, 13, 0)),
    Part.LineSegment(Vector(13.5, 13, 0), Vector(13.5, 18, 0)),
    Part.LineSegment(Vector(13.5, 18, 0), Vector(22.5, 18, 0)),
    Part.LineSegment(Vector(22.5, 18, 0), Vector(22.5, 13, 0)),
], False)
sketch13.addConstraint([
    Sketcher.Constraint("Coincident", 0, 2, 1, 1),
    Sketcher.Constraint("Coincident", 1, 2, 2, 1),
    Sketcher.Constraint("Coincident", 2, 2, 3, 1),
    Sketcher.Constraint("Coincident", 3, 2, 0, 1),
    Sketcher.Constraint("Horizontal", 0),
    Sketcher.Constraint("Vertical", 1),
    Sketcher.Constraint("Horizontal", 2),
    Sketcher.Constraint("Vertical", 3),
    Sketcher.Constraint("DistanceX", 0, 2, 0, 1, 9.0),
    Sketcher.Constraint("DistanceY", 1, 1, 1, 2, 5.0),
    Sketcher.Constraint("DistanceY", -1, 1, 0, 2, 13.0),
    Sketcher.Constraint("DistanceX", -1, 1, 0, 2, 13.5),
])
sketch13.setExpression("Constraints[8]", "Params.sketch13_width")
sketch13.setExpression("Constraints[9]", "Params.sketch13_height")
pocket10 = doc.addObject("PartDesign::Pocket", "Pocket009")
body.addObject(pocket10)
pocket10.Profile = sketch13
pocket10.setExpression("Length", "Params.pocket10_length")
pocket10.Reversed = True

# Sketch on XY plane
sketch14 = doc.addObject("Sketcher::SketchObject", "Sketch013")
body.addObject(sketch14)
sketch14.AttachmentSupport = (doc.XY_Plane, [""])
sketch14.MapMode = "FlatFace"
sketch14.AttachmentOffset = App.Placement(Vector(0, 0, 14.5), App.Rotation())
sketch14.addGeometry([
    Part.LineSegment(Vector(60.5, -48.8, 0), Vector(60.5, -50.2, 0)),
    Part.LineSegment(Vector(60.5, -50.2, 0), Vector(58, -50.2, 0)),
    Part.LineSegment(Vector(58, -50.2, 0), Vector(58, -48.8, 0)),
    Part.LineSegment(Vector(58, -48.8, 0), Vector(60.5, -48.8, 0)),
], False)
sketch14.addConstraint([
    Sketcher.Constraint("Coincident", 0, 2, 1, 1),
    Sketcher.Constraint("Coincident", 1, 2, 2, 1),
    Sketcher.Constraint("Coincident", 2, 2, 3, 1),
    Sketcher.Constraint("Coincident", 3, 2, 0, 1),
    Sketcher.Constraint("Vertical", 0),
    Sketcher.Constraint("Horizontal", 1),
    Sketcher.Constraint("Vertical", 2),
    Sketcher.Constraint("Horizontal", 3),
    Sketcher.Constraint("DistanceX", 1, 2, 1, 1, 2.5),
    Sketcher.Constraint("DistanceY", 0, 2, 0, 1, 1.4),
    Sketcher.Constraint("DistanceX", -1, 1, 1, 2, 58.0),
    Sketcher.Constraint("DistanceY", 0, 2, -1, 1, 50.2),
])
sketch14.setExpression("Constraints[8]", "Params.sketch14_width")
sketch14.setExpression("Constraints[9]", "Params.sketch14_height")
pad4 = doc.addObject("PartDesign::Pad", "Pad003")
body.addObject(pad4)
pad4.Profile = sketch14
pad4.setExpression("Length", "Params.pad4_length")
pad4.Reversed = True

doc.recompute()
